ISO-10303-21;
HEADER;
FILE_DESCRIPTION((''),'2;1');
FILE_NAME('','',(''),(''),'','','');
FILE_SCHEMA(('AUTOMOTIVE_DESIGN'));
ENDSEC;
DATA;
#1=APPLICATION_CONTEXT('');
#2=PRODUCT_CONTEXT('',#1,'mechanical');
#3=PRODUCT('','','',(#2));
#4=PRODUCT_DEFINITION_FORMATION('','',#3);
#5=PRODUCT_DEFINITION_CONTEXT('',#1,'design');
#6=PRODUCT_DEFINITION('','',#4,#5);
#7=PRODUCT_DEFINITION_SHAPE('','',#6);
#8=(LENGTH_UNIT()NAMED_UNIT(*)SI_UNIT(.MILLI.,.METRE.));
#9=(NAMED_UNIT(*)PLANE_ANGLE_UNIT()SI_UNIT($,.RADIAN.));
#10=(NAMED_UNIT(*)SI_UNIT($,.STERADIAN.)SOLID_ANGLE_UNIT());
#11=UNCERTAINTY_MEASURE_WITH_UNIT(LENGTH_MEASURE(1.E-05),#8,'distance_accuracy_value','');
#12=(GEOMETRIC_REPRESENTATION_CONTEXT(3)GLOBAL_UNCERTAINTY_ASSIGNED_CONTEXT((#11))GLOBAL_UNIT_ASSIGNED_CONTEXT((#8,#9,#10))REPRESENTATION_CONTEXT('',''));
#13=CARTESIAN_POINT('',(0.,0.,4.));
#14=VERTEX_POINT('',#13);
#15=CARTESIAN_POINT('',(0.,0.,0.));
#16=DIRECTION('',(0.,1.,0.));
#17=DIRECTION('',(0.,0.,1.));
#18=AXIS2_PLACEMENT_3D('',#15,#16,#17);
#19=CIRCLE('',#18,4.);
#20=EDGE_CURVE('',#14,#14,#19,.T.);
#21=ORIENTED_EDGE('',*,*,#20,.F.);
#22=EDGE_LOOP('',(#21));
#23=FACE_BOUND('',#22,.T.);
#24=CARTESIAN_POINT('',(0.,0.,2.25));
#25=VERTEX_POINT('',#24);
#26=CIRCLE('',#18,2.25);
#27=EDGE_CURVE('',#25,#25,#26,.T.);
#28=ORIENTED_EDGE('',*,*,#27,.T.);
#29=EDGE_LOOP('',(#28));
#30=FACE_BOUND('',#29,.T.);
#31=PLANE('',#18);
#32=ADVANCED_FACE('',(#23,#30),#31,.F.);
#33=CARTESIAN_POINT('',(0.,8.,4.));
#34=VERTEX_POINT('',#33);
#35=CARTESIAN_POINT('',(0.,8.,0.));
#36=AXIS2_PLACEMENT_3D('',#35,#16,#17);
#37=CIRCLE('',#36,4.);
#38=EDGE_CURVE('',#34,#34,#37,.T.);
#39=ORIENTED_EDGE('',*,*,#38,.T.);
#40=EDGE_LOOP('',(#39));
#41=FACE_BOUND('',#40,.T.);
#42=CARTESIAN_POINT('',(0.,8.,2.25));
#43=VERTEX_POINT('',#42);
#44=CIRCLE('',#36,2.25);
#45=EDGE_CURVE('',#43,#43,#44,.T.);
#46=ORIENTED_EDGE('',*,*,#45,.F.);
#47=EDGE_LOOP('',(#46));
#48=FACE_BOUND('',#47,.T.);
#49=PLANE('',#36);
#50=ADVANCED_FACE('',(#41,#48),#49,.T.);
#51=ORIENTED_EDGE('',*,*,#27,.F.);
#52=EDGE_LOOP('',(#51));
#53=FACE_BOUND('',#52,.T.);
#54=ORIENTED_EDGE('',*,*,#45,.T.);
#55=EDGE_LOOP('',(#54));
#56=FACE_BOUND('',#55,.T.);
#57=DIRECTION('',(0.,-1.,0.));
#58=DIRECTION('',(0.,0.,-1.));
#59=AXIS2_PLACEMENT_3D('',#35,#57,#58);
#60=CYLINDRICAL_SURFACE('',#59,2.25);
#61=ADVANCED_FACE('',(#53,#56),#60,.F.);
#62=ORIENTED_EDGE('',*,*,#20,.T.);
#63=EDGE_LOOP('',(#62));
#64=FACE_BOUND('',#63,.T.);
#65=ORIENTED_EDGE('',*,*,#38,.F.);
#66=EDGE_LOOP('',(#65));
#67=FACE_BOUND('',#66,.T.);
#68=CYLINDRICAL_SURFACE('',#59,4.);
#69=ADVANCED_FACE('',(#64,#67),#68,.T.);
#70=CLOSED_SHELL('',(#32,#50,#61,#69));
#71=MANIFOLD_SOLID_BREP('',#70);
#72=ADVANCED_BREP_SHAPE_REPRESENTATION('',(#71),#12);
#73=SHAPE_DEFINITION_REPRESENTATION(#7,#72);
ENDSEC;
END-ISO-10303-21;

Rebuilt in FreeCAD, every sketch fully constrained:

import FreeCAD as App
import Part
import Sketcher

V = App.Vector

doc = App.newDocument("Part")
params = doc.addObject("Spreadsheet::Sheet", "Params")
for row, (alias, value) in enumerate([
    ("sketch1_diameter", "8 mm"),
    ("sketch1_diameter2", "4.5 mm"),
    ("pad1_length", "8 mm"),
], start=1):
    params.set(f"A{row}", alias)
    params.set(f"B{row}", "=" + value)
    params.setAlias(f"B{row}", alias)

body = doc.addObject("PartDesign::Body", "Body")

# Sketch on XZ plane
sketch1 = body.newObject("Sketcher::SketchObject", "Sketch")
sketch1.AttachmentSupport = (doc.getObject("XZ_Plane"), [""])
sketch1.MapMode = "FlatFace"
sketch1.addGeometry([
    Part.Circle(V(0, 0, 0), V(0, 0, 1), 4),
    Part.Circle(V(0, 0, 0), V(0, 0, 1), 2.25),
], False)
sketch1.addConstraint([
    Sketcher.Constraint("Coincident", 0, 3, -1, 1),
    Sketcher.Constraint("Coincident", 1, 3, -1, 1),
    Sketcher.Constraint("Diameter", 0, 8.0),
    Sketcher.Constraint("Diameter", 1, 4.5),
])
sketch1.setExpression("Constraints[2]", "Params.sketch1_diameter")
sketch1.setExpression("Constraints[3]", "Params.sketch1_diameter2")
pad1 = body.newObject("PartDesign::Pad", "Pad")
pad1.Profile = sketch1
pad1.setExpression("Length", "Params.pad1_length")
pad1.Reversed = True

doc.recompute()
